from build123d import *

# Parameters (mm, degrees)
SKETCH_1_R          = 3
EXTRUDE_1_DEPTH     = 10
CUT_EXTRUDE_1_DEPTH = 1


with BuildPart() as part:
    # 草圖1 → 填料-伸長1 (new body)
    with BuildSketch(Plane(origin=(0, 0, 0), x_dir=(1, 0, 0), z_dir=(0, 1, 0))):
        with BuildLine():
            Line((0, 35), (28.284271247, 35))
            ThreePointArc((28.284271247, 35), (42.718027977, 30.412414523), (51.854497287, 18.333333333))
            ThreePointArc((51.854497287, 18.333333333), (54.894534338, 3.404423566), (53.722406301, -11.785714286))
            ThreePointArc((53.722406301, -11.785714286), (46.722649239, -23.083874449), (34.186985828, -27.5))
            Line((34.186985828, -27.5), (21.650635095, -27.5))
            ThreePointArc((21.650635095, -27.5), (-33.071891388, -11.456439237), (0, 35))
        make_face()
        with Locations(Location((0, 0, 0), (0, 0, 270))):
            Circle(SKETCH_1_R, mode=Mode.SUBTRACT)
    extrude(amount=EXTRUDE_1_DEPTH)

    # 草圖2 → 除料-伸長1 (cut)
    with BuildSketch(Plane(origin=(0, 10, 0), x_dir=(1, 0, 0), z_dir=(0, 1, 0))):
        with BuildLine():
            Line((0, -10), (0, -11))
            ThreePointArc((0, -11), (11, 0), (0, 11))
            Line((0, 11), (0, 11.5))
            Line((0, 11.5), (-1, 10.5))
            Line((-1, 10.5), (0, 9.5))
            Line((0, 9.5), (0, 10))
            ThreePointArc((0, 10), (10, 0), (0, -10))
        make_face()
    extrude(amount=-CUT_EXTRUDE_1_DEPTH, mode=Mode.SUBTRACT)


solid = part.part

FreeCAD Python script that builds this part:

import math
import FreeCAD as App
import Part
import Sketcher
Q = App.Units.Quantity

doc = App.newDocument("Part")
body = doc.addObject("PartDesign::Body", "Body")

sketch1 = doc.addObject("Sketcher::SketchObject", "Sketch")
body.addObject(sketch1)
sketch1.AttachmentSupport = (doc.XZ_Plane, [""])
sketch1.MapMode = "FlatFace"
sketch1.addGeometry([
    Part.LineSegment(App.Vector(28.3, -35, 0), App.Vector(0, -35, 0)),
    Part.ArcOfCircle(Part.Circle(App.Vector(0, 0, 0), App.Vector(0, 0, 1), 35), math.radians(52), math.radians(270)),
    Part.LineSegment(App.Vector(21.7, 27.5, 0), App.Vector(34.2, 27.5, 0)),
    Part.ArcOfCircle(Part.Circle(App.Vector(34.2, 7.5, 0), App.Vector(0, 0, 1), 20), math.radians(12), math.radians(90)),
    Part.ArcOfCircle(Part.Circle(App.Vector(0, 0, 0), App.Vector(0, 0, 1), 55), math.radians(-19), math.radians(12)),
    Part.ArcOfCircle(Part.Circle(App.Vector(28.3, -10, 0), App.Vector(0, 0, 1), 25), math.radians(-90), math.radians(-19)),
    Part.Circle(App.Vector(0, 0, 0), App.Vector(0, 0, 1), 3),
], False)
sketch1.addConstraint([
    Sketcher.Constraint("Tangent", 0, 2, 1, 2),
    Sketcher.Constraint("Coincident", 1, 1, 2, 1),
    Sketcher.Constraint("Tangent", 2, 2, 3, 2),
    Sketcher.Constraint("Tangent", 3, 1, 4, 2),
    Sketcher.Constraint("Tangent", 4, 1, 5, 2),
    Sketcher.Constraint("Tangent", 5, 1, 0, 1),
    Sketcher.Constraint("Horizontal", 0),
    Sketcher.Constraint("Horizontal", 2),
    Sketcher.Constraint("Coincident", 1, 3, -1, 1),
    Sketcher.Constraint("Coincident", 4, 3, -1, 1),
    Sketcher.Constraint("Coincident", 6, 3, -1, 1),
    Sketcher.Constraint("Diameter", 6, Q("6 mm")),
    Sketcher.Constraint("Radius", 1, Q("35 mm")),
    Sketcher.Constraint("Radius", 3, Q("20 mm")),
    Sketcher.Constraint("Radius", 4, Q("55 mm")),
    Sketcher.Constraint("Radius", 5, Q("25 mm")),
    Sketcher.Constraint("DistanceY", -1, 1, 3, 3, Q("7.5 mm")),
])
pad1 = doc.addObject("PartDesign::Pad", "Pad")
body.addObject(pad1)
pad1.Profile = sketch1
pad1.Length = 10
pad1.Reversed = True

sketch2 = doc.addObject("Sketcher::SketchObject", "Sketch001")
body.addObject(sketch2)
sketch2.AttachmentSupport = (doc.XZ_Plane, [""])
sketch2.MapMode = "FlatFace"
sketch2.AttachmentOffset = App.Placement(App.Vector(0, 0, -10), App.Rotation())
sketch2.addGeometry([
    Part.LineSegment(App.Vector(0, 10, 0), App.Vector(0, 11, 0)),
    Part.ArcOfCircle(Part.Circle(App.Vector(0, 0, 0), App.Vector(0, 0, 1), 11), math.radians(-90), math.radians(90)),
    Part.LineSegment(App.Vector(0, -11, 0), App.Vector(0, -11.5, 0)),
    Part.LineSegment(App.Vector(0, -11.5, 0), App.Vector(-1, -10.5, 0)),
    Part.LineSegment(App.Vector(-1, -10.5, 0), App.Vector(0, -9.5, 0)),
    Part.LineSegment(App.Vector(0, -9.5, 0), App.Vector(0, -10, 0)),
    Part.ArcOfCircle(Part.Circle(App.Vector(0, 0, 0), App.Vector(0, 0, 1), 10), math.radians(-90), math.radians(90)),
], False)
sketch2.addConstraint([
    Sketcher.Constraint("Coincident", 0, 2, 1, 2),
    Sketcher.Constraint("Coincident", 1, 1, 2, 1),
    Sketcher.Constraint("Coincident", 2, 2, 3, 1),
    Sketcher.Constraint("Coincident", 3, 2, 4, 1),
    Sketcher.Constraint("Coincident", 4, 2, 5, 1),
    Sketcher.Constraint("Coincident", 5, 2, 6, 1),
    Sketcher.Constraint("Coincident", 6, 2, 0, 1),
    Sketcher.Constraint("Vertical", 0),
    Sketcher.Constraint("Vertical", 2),
    Sketcher.Constraint("Vertical", 5),
    Sketcher.Constraint("Coincident", 1, 3, -1, 1),
    Sketcher.Constraint("Coincident", 6, 3, -1, 1),
    Sketcher.Constraint("PointOnObject", 0, 2, -2),
    Sketcher.Constraint("PointOnObject", 1, 1, -2),
    Sketcher.Constraint("PointOnObject", 4, 2, -2),
    Sketcher.Constraint("Perpendicular", 3, 4),
    Sketcher.Constraint("Equal", 2, 5),
    Sketcher.Constraint("Equal", 3, 4),
    Sketcher.Constraint("Radius", 1, Q("11 mm")),
    Sketcher.Constraint("Radius", 6, Q("10 mm")),
    Sketcher.Constraint("DistanceY", 2, 2, 2, 1, Q("0.5 mm")),
])
pocket1 = doc.addObject("PartDesign::Pocket", "Pocket")
body.addObject(pocket1)
pocket1.Profile = sketch2
pocket1.Length = 1
pocket1.Reversed = True

doc.recompute()
